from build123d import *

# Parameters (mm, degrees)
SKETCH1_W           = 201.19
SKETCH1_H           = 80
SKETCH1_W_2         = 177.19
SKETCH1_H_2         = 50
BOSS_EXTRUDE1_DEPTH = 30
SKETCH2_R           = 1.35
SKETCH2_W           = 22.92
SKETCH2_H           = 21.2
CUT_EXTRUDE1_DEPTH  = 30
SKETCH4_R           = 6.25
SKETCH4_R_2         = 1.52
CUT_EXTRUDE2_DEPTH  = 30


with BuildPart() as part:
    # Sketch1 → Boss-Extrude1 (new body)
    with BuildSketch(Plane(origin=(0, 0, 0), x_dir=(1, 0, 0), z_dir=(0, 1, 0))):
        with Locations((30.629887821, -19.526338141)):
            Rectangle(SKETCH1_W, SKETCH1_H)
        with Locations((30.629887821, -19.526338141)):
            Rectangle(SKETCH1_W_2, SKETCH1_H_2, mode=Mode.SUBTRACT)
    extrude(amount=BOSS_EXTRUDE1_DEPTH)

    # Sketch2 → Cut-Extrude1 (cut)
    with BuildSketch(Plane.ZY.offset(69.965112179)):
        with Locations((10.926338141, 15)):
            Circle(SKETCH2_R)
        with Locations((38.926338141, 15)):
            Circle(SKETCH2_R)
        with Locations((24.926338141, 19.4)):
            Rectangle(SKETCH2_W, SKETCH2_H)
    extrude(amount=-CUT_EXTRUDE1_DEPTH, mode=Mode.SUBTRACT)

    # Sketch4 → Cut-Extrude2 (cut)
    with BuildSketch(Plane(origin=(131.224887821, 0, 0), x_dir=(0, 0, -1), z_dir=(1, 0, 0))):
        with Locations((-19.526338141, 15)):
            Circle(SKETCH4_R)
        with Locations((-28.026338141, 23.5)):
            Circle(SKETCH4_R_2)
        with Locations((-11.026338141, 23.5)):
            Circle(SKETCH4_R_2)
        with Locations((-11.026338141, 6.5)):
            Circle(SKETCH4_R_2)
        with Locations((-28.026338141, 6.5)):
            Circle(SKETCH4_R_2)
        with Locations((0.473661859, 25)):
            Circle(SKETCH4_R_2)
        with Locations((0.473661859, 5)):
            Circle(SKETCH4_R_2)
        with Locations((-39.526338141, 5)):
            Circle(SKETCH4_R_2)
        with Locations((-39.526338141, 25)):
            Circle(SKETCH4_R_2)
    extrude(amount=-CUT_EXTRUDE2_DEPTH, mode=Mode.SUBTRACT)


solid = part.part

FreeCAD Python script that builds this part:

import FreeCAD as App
import Part
import Sketcher


def add_polygon(sketch, points):
    """Adds a closed chain of lines whose ends are joined by coincident constraints."""
    first, n = sketch.GeometryCount, len(points)
    for a, b in zip(points, points[1:] + points[:1]):
        sketch.addGeometry(Part.LineSegment(App.Vector(*a, 0), App.Vector(*b, 0)), False)
    for i in range(n):
        sketch.addConstraint(Sketcher.Constraint("Coincident", first + i, 2, first + (i + 1) % n, 1))

doc = App.newDocument("Part")
body = doc.addObject("PartDesign::Body", "Body")

sketch1 = doc.addObject("Sketcher::SketchObject", "Sketch")
body.addObject(sketch1)
sketch1.AttachmentSupport = (doc.XZ_Plane, [""])
sketch1.MapMode = "FlatFace"
add_polygon(sketch1, [(-69.965112, -20.473662), (-69.965112, 59.526338), (131.224888, 59.526338), (131.224888, -20.473662)])
add_polygon(sketch1, [(119.224888, 44.526338), (-57.965112, 44.526338), (-57.965112, -5.473662), (119.224888, -5.473662)])
sketch1.addConstraint(Sketcher.Constraint("Vertical", 0))
sketch1.addConstraint(Sketcher.Constraint("Horizontal", 1))
sketch1.addConstraint(Sketcher.Constraint("Vertical", 2))
sketch1.addConstraint(Sketcher.Constraint("Horizontal", 3))
sketch1.addConstraint(Sketcher.Constraint("Horizontal", 4))
sketch1.addConstraint(Sketcher.Constraint("Vertical", 5))
sketch1.addConstraint(Sketcher.Constraint("Horizontal", 6))
sketch1.addConstraint(Sketcher.Constraint("Vertical", 7))
sketch1.addConstraint(Sketcher.Constraint("DistanceY", 0, 1, 0, 2, 80.0))
sketch1.addConstraint(Sketcher.Constraint("DistanceY", 5, 2, 5, 1, 50.0))
sketch1.addConstraint(Sketcher.Constraint("DistanceX", 0, 2, 4, 2, 12.0))
sketch1.addConstraint(Sketcher.Constraint("DistanceY", 4, 2, 0, 2, 15.0))
sketch1.addConstraint(Sketcher.Constraint("DistanceX", 6, 2, 2, 2, 12.0))
sketch1.addConstraint(Sketcher.Constraint("DistanceX", 1, 1, 1, 2, 201.19))
sketch1.addConstraint(Sketcher.Constraint("DistanceY", -1, 1, 0, 2, 59.526338))
sketch1.addConstraint(Sketcher.Constraint("DistanceX", 0, 2, -1, 1, 69.965112))
pad1 = doc.addObject("PartDesign::Pad", "Pad")
body.addObject(pad1)
pad1.Profile = sketch1
pad1.Length = 30
pad1.Reversed = True

sketch2 = doc.addObject("Sketcher::SketchObject", "Sketch001")
body.addObject(sketch2)
sketch2.AttachmentSupport = (doc.YZ_Plane, [""])
sketch2.MapMode = "FlatFace"
sketch2.AttachmentOffset = App.Placement(App.Vector(0, 0, -69.965112), App.Rotation())
sketch2.addGeometry(Part.Circle(App.Vector(15, 10.926338, 0), App.Vector(0, 0, 1), 1.35), False)
sketch2.addGeometry(Part.Circle(App.Vector(15, 38.926338, 0), App.Vector(0, 0, 1), 1.35), False)
add_polygon(sketch2, [(30, 13.466338), (8.8, 13.466338), (8.8, 36.386338), (30, 36.386338)])
sketch2.addConstraint(Sketcher.Constraint("Horizontal", 2))
sketch2.addConstraint(Sketcher.Constraint("Vertical", 3))
sketch2.addConstraint(Sketcher.Constraint("Horizontal", 4))
sketch2.addConstraint(Sketcher.Constraint("Vertical", 5))
sketch2.addConstraint(Sketcher.Constraint("Equal", 0, 1))
sketch2.addConstraint(Sketcher.Constraint("Vertical", 0, 3, 1, 3))
sketch2.addConstraint(Sketcher.Constraint("Diameter", 0, 2.7))
sketch2.addConstraint(Sketcher.Constraint("DistanceX", 2, 2, 2, 1, 21.2))
sketch2.addConstraint(Sketcher.Constraint("DistanceX", -1, 1, 0, 3, 15.0))
sketch2.addConstraint(Sketcher.Constraint("DistanceX", -1, 1, 4, 2, 30.0))
sketch2.addConstraint(Sketcher.Constraint("DistanceY", 0, 3, 1, 3, 28.0))
sketch2.addConstraint(Sketcher.Constraint("DistanceY", 3, 1, 3, 2, 22.92))
sketch2.addConstraint(Sketcher.Constraint("DistanceY", 0, 3, 2, 2, 2.54))
sketch2.addConstraint(Sketcher.Constraint("DistanceY", -1, 1, 0, 3, 10.926338))
pocket1 = doc.addObject("PartDesign::Pocket", "Pocket")
body.addObject(pocket1)
pocket1.Profile = sketch2
pocket1.Length = 30
pocket1.Reversed = True

sketch3 = doc.addObject("Sketcher::SketchObject", "Sketch002")
body.addObject(sketch3)
sketch3.AttachmentSupport = (doc.YZ_Plane, [""])
sketch3.MapMode = "FlatFace"
sketch3.AttachmentOffset = App.Placement(App.Vector(0, 0, 131.224888), App.Rotation())
sketch3.addGeometry(Part.Circle(App.Vector(15, 19.526338, 0), App.Vector(0, 0, 1), 6.25), False)
sketch3.addGeometry(Part.Circle(App.Vector(23.5, 28.026338, 0), App.Vector(0, 0, 1), 1.52), False)
sketch3.addGeometry(Part.Circle(App.Vector(23.5, 11.026338, 0), App.Vector(0, 0, 1), 1.52), False)
sketch3.addGeometry(Part.Circle(App.Vector(6.5, 11.026338, 0), App.Vector(0, 0, 1), 1.52), False)
sketch3.addGeometry(Part.Circle(App.Vector(6.5, 28.026338, 0), App.Vector(0, 0, 1), 1.52), False)
sketch3.addGeometry(Part.Circle(App.Vector(25, -0.473662, 0), App.Vector(0, 0, 1), 1.52), False)
sketch3.addGeometry(Part.Circle(App.Vector(5, -0.473662, 0), App.Vector(0, 0, 1), 1.52), False)
sketch3.addGeometry(Part.Circle(App.Vector(5, 39.526338, 0), App.Vector(0, 0, 1), 1.52), False)
sketch3.addGeometry(Part.Circle(App.Vector(25, 39.526338, 0), App.Vector(0, 0, 1), 1.52), False)
sketch3.addConstraint(Sketcher.Constraint("Equal", 1, 2))
sketch3.addConstraint(Sketcher.Constraint("Equal", 2, 3))
sketch3.addConstraint(Sketcher.Constraint("Equal", 3, 4))
sketch3.addConstraint(Sketcher.Constraint("Equal", 4, 5))
sketch3.addConstraint(Sketcher.Constraint("Equal", 5, 6))
sketch3.addConstraint(Sketcher.Constraint("Equal", 6, 7))
sketch3.addConstraint(Sketcher.Constraint("Equal", 7, 8))
sketch3.addConstraint(Sketcher.Constraint("Horizontal", 2, 3, 3, 3))
sketch3.addConstraint(Sketcher.Constraint("Horizontal", 1, 3, 4, 3))
sketch3.addConstraint(Sketcher.Constraint("Horizontal", 5, 3, 6, 3))
sketch3.addConstraint(Sketcher.Constraint("Horizontal", 7, 3, 8, 3))
sketch3.addConstraint(Sketcher.Constraint("Vertical", 1, 3, 2, 3))
sketch3.addConstraint(Sketcher.Constraint("Vertical", 3, 3, 4, 3))
sketch3.addConstraint(Sketcher.Constraint("Vertical", 6, 3, 7, 3))
sketch3.addConstraint(Sketcher.Constraint("Vertical", 5, 3, 8, 3))
sketch3.addConstraint(Sketcher.Constraint("Diameter", 0, 12.5))
sketch3.addConstraint(Sketcher.Constraint("Diameter", 1, 3.04))
sketch3.addConstraint(Sketcher.Constraint("DistanceX", -1, 1, 0, 3, 15.0))
sketch3.addConstraint(Sketcher.Constraint("DistanceX", -1, 1, 5, 3, 25.0))
sketch3.addConstraint(Sketcher.Constraint("DistanceX", -1, 1, 6, 3, 5.0))
sketch3.addConstraint(Sketcher.Constraint("DistanceY", 2, 3, 1, 3, 17.0))
sketch3.addConstraint(Sketcher.Constraint("DistanceX", 3, 3, 2, 3, 17.0))
sketch3.addConstraint(Sketcher.Constraint("DistanceY", 5, 3, 0, 3, 20.0))
sketch3.addConstraint(Sketcher.Constraint("DistanceY", 0, 3, 7, 3, 20.0))
sketch3.addConstraint(Sketcher.Constraint("DistanceX", -1, 1, 1, 3, 23.5))
sketch3.addConstraint(Sketcher.Constraint("DistanceY", 0, 3, 1, 3, 8.5))
sketch3.addConstraint(Sketcher.Constraint("DistanceY", -1, 1, 0, 3, 19.526338))
pocket2 = doc.addObject("PartDesign::Pocket", "Pocket001")
body.addObject(pocket2)
pocket2.Profile = sketch3
pocket2.Length = 30

doc.recompute()
